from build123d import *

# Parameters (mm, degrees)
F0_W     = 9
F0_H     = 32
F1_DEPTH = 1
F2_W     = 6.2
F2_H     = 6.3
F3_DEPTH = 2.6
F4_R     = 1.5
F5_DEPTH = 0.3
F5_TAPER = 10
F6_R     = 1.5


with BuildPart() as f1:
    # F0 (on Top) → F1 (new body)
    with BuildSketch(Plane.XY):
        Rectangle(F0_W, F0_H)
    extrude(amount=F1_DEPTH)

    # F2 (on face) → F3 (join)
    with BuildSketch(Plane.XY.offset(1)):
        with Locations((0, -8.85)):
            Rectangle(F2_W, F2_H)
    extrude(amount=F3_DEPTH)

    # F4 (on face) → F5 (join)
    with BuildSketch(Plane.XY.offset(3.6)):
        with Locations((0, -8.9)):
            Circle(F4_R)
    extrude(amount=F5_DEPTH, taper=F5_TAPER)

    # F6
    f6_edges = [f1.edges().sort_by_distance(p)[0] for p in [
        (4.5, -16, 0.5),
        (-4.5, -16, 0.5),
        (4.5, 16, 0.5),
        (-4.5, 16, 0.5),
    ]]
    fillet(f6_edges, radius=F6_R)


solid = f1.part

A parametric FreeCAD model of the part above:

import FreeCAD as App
import Part
import Sketcher

V = App.Vector
Q = App.Units.Quantity


def edges_at(feature, points):
    """Names of the edges that pass closest to the given points."""
    edges = feature.Shape.Edges
    near = lambda p: min(range(len(edges)), key=lambda i: edges[i].distToShape(Part.Vertex(*p))[0])
    return sorted({f"Edge{near(p) + 1}" for p in points})

doc = App.newDocument("Part")
body = doc.addObject("PartDesign::Body", "Body")

# Sketch on XY plane
sketch1 = body.newObject("Sketcher::SketchObject", "Sketch")
sketch1.AttachmentSupport = (doc.getObject("XY_Plane"), [""])
sketch1.MapMode = "FlatFace"
sketch1.addGeometry([
    Part.LineSegment(V(-4, 16, 0), V(-4, -16, 0)),
    Part.LineSegment(V(-4, -16, 0), V(4, -16, 0)),
    Part.LineSegment(V(4, -16, 0), V(4, 16, 0)),
    Part.LineSegment(V(4, 16, 0), V(-4, 16, 0)),
], False)
sketch1.addConstraint([
    Sketcher.Constraint("Coincident", 0, 2, 1, 1),
    Sketcher.Constraint("Coincident", 1, 2, 2, 1),
    Sketcher.Constraint("Coincident", 2, 2, 3, 1),
    Sketcher.Constraint("Coincident", 3, 2, 0, 1),
    Sketcher.Constraint("Vertical", 0),
    Sketcher.Constraint("Horizontal", 1),
    Sketcher.Constraint("Vertical", 2),
    Sketcher.Constraint("Horizontal", 3),
    Sketcher.Constraint("Symmetric", 0, 2, 2, 2, -1, 1),
    Sketcher.Constraint("DistanceX", 1, 1, 1, 2, Q("9 mm")),
    Sketcher.Constraint("DistanceY", 0, 2, 0, 1, Q("32 mm")),
])
pad1 = body.newObject("PartDesign::Pad", "Pad")
pad1.Profile = sketch1
pad1.Length = 1

# Sketch on XY plane
sketch2 = body.newObject("Sketcher::SketchObject", "Sketch001")
sketch2.AttachmentSupport = (doc.getObject("XY_Plane"), [""])
sketch2.MapMode = "FlatFace"
sketch2.AttachmentOffset = App.Placement(V(0, 0, 1), App.Rotation())
sketch2.addGeometry([
    Part.LineSegment(V(-3, -6, 0), V(-3, -12, 0)),
    Part.LineSegment(V(-3, -12, 0), V(3, -12, 0)),
    Part.LineSegment(V(3, -12, 0), V(3, -6, 0)),
    Part.LineSegment(V(3, -6, 0), V(-3, -6, 0)),
], False)
sketch2.addConstraint([
    Sketcher.Constraint("Coincident", 0, 2, 1, 1),
    Sketcher.Constraint("Coincident", 1, 2, 2, 1),
    Sketcher.Constraint("Coincident", 2, 2, 3, 1),
    Sketcher.Constraint("Coincident", 3, 2, 0, 1),
    Sketcher.Constraint("Vertical", 0),
    Sketcher.Constraint("Horizontal", 1),
    Sketcher.Constraint("Vertical", 2),
    Sketcher.Constraint("Horizontal", 3),
    Sketcher.Constraint("DistanceX", 1, 1, 1, 2, Q("6.2 mm")),
    Sketcher.Constraint("DistanceY", 0, 2, 0, 1, Q("6.3 mm")),
    Sketcher.Constraint("DistanceY", 0, 2, -1, 1, Q("12 mm")),
    Sketcher.Constraint("DistanceX", 0, 2, -1, 1, Q("3.1 mm")),
])
pad2 = body.newObject("PartDesign::Pad", "Pad001")
pad2.Profile = sketch2
pad2.Length = 2.6

# Sketch on XY plane
sketch3 = body.newObject("Sketcher::SketchObject", "Sketch002")
sketch3.AttachmentSupport = (doc.getObject("XY_Plane"), [""])
sketch3.MapMode = "FlatFace"
sketch3.AttachmentOffset = App.Placement(V(0, 0, 3.6), App.Rotation())
sketch3.addGeometry(Part.Circle(V(0, -8.9, 0), V(0, 0, 1), 1.5), False)
sketch3.addConstraint([
    Sketcher.Constraint("PointOnObject", 0, 3, -2),
    Sketcher.Constraint("Diameter", 0, Q("3 mm")),
    Sketcher.Constraint("DistanceY", 0, 3, -1, 1, Q("8.9 mm")),
])
pad3 = body.newObject("PartDesign::Pad", "Pad002")
pad3.Profile = sketch3
pad3.Length = 0.3
pad3.TaperAngle = -10
doc.recompute()

fillet = body.newObject("PartDesign::Fillet", "Fillet")
fillet.Base = (pad3, edges_at(pad3, [
    (4.5, -16, 0.5),
    (-4.5, -16, 0.5),
    (4.5, 16, 0.5),
    (-4.5, 16, 0.5),
]))
fillet.Radius = 1.5

doc.recompute()
